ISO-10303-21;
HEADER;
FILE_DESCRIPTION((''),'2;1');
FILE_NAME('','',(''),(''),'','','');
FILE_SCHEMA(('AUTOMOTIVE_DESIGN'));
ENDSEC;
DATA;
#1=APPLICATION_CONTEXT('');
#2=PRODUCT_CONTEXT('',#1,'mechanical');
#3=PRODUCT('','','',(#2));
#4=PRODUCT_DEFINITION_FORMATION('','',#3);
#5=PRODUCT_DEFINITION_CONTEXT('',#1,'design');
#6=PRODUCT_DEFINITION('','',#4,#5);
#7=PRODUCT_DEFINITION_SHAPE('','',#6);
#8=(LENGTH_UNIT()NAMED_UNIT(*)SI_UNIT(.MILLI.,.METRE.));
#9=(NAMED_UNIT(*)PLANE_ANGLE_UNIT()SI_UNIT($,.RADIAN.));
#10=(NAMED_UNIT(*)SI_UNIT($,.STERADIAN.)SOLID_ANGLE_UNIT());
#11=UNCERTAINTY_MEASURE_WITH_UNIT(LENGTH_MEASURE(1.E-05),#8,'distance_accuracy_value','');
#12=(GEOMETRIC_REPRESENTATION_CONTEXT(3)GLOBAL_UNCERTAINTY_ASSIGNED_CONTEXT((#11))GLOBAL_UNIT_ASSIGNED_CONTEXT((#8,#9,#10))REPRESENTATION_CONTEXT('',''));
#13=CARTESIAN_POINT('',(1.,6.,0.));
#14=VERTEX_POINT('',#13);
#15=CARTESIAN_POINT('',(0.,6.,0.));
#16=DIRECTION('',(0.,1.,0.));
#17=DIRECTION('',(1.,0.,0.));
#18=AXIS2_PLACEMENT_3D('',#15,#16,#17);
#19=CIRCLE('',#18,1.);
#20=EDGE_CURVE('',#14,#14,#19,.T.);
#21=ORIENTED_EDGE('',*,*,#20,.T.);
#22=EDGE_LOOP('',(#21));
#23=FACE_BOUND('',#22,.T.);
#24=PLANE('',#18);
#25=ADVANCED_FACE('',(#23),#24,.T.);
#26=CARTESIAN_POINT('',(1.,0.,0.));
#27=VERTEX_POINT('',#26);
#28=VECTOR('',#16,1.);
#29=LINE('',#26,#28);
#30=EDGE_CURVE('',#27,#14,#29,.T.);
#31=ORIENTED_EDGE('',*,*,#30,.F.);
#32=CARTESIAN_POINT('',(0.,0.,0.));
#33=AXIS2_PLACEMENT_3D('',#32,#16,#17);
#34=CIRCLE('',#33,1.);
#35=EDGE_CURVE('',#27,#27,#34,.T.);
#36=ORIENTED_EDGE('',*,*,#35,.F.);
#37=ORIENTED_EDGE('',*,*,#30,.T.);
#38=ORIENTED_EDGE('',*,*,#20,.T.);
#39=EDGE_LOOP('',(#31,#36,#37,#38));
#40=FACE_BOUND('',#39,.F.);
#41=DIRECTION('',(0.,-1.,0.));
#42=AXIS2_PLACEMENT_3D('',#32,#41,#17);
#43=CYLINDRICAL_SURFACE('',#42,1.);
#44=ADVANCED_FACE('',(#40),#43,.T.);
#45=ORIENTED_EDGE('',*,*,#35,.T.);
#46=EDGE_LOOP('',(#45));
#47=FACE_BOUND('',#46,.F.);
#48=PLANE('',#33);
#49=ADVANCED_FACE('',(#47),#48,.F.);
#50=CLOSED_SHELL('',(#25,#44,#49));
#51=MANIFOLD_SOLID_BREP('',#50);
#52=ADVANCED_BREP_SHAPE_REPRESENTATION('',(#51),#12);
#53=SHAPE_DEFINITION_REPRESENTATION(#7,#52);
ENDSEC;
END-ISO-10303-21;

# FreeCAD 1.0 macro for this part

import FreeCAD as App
import Part
import Sketcher
Q = App.Units.Quantity

doc = App.newDocument("Part")
body = doc.addObject("PartDesign::Body", "Body")

sketch1 = body.newObject("Sketcher::SketchObject", "Sketch")
sketch1.AttachmentSupport = (doc.getObject("XZ_Plane"), [""])
sketch1.MapMode = "FlatFace"
sketch1.addGeometry(Part.Circle(App.Vector(0, 0, 0), App.Vector(0, 0, 1), 1), False)
sketch1.addConstraint([
    Sketcher.Constraint("Coincident", 0, 3, -1, 1),
    Sketcher.Constraint("Diameter", 0, Q("2 mm")),
])
pad1 = body.newObject("PartDesign::Pad", "Pad")
pad1.Profile = sketch1
pad1.Length = 6
pad1.Reversed = True

doc.recompute()
